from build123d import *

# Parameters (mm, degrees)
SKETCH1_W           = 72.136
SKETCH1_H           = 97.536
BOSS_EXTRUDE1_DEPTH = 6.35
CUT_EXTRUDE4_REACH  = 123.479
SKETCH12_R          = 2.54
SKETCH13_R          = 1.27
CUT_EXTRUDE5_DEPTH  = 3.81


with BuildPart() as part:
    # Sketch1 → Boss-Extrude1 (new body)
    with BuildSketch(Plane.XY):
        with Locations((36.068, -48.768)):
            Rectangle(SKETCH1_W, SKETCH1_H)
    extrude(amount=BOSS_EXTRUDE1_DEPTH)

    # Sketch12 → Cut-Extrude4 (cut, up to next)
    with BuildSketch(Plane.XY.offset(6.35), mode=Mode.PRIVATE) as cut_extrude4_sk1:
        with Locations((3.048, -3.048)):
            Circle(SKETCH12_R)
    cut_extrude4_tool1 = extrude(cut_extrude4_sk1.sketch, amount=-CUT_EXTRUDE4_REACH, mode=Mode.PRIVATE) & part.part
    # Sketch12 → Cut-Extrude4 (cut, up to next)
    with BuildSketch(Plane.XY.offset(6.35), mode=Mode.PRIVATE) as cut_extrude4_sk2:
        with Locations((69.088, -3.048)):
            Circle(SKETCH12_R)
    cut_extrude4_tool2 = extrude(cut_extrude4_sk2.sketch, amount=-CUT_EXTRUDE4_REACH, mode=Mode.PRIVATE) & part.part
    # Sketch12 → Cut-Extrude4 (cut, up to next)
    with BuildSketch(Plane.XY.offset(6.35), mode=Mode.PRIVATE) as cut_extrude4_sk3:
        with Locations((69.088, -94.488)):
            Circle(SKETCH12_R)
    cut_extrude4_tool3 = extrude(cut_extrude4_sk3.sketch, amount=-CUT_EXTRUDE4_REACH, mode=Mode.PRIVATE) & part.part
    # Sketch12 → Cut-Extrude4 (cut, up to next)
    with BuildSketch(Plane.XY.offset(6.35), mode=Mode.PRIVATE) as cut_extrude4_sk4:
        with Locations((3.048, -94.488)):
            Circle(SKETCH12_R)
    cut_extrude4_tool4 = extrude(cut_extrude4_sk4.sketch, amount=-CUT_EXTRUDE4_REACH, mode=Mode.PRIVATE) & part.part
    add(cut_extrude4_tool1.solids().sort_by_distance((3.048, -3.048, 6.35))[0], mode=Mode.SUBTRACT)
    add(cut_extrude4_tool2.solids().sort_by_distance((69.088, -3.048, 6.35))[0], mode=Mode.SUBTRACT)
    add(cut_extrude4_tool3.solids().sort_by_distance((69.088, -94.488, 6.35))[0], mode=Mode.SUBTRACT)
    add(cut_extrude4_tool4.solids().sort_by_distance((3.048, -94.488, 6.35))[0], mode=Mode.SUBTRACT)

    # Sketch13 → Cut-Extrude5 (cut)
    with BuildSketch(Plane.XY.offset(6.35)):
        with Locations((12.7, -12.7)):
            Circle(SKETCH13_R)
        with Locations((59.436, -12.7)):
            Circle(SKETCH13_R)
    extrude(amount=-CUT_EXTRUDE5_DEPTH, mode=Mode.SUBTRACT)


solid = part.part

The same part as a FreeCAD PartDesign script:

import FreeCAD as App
import Part
import Sketcher
from FreeCAD import Vector
Q = App.Units.Quantity


def add_polygon(sketch, points):
    """Adds a closed chain of lines whose ends are joined by coincident constraints."""
    first, n = sketch.GeometryCount, len(points)
    for a, b in zip(points, points[1:] + points[:1]):
        sketch.addGeometry(Part.LineSegment(App.Vector(*a, 0), App.Vector(*b, 0)), False)
    for i in range(n):
        sketch.addConstraint(Sketcher.Constraint("Coincident", first + i, 2, first + (i + 1) % n, 1))

doc = App.newDocument("Part")
body = doc.addObject("PartDesign::Body", "Body")

sketch1 = body.newObject("Sketcher::SketchObject", "Sketch")
sketch1.AttachmentSupport = (doc.getObject("XY_Plane"), [""])
sketch1.MapMode = "FlatFace"
add_polygon(sketch1, [(0, 0), (0, -98), (72, -98), (72, 0)])
sketch1.addConstraint(Sketcher.Constraint("Vertical", 0))
sketch1.addConstraint(Sketcher.Constraint("Horizontal", 1))
sketch1.addConstraint(Sketcher.Constraint("Vertical", 2))
sketch1.addConstraint(Sketcher.Constraint("Horizontal", 3))
sketch1.addConstraint(Sketcher.Constraint("Coincident", 3, 2, -1, 1))
sketch1.addConstraint(Sketcher.Constraint("DistanceX", 1, 1, 1, 2, Q("2.84 in")))
sketch1.addConstraint(Sketcher.Constraint("DistanceY", 0, 2, 0, 1, Q("3.84 in")))
pad1 = body.newObject("PartDesign::Pad", "Pad")
pad1.Profile = sketch1
pad1.Length = Q("0.25 in")

sketch2 = body.newObject("Sketcher::SketchObject", "Sketch001")
sketch2.AttachmentSupport = (doc.getObject("XY_Plane"), [""])
sketch2.MapMode = "FlatFace"
sketch2.AttachmentOffset = App.Placement(Vector(0, 0, 0.25 * 25.4), App.Rotation())
sketch2.addGeometry(Part.Circle(Vector(3, -3, 0), Vector(0, 0, 1), 2.5), False)
sketch2.addConstraint(Sketcher.Constraint("Diameter", 0, Q("0.2 in")))
sketch2.addConstraint(Sketcher.Constraint("DistanceX", -1, 1, 0, 3, Q("0.12 in")))
sketch2.addConstraint(Sketcher.Constraint("DistanceY", 0, 3, -1, 1, Q("0.12 in")))
pocket1 = body.newObject("PartDesign::Pocket", "Pocket")
pocket1.Profile = sketch2
pocket1.Type = "UpToFirst"

sketch3 = body.newObject("Sketcher::SketchObject", "Sketch002")
sketch3.AttachmentSupport = (doc.getObject("XY_Plane"), [""])
sketch3.MapMode = "FlatFace"
sketch3.AttachmentOffset = App.Placement(Vector(0, 0, 0.25 * 25.4), App.Rotation())
sketch3.addGeometry(Part.Circle(Vector(69.1, -3, 0), Vector(0, 0, 1), 2.5), False)
sketch3.addConstraint(Sketcher.Constraint("Diameter", 0, Q("0.2 in")))
sketch3.addConstraint(Sketcher.Constraint("DistanceX", -1, 1, 0, 3, Q("2.72 in")))
sketch3.addConstraint(Sketcher.Constraint("DistanceY", 0, 3, -1, 1, Q("0.12 in")))
pocket2 = body.newObject("PartDesign::Pocket", "Pocket001")
pocket2.Profile = sketch3
pocket2.Type = "UpToFirst"

sketch4 = body.newObject("Sketcher::SketchObject", "Sketch003")
sketch4.AttachmentSupport = (doc.getObject("XY_Plane"), [""])
sketch4.MapMode = "FlatFace"
sketch4.AttachmentOffset = App.Placement(Vector(0, 0, 0.25 * 25.4), App.Rotation())
sketch4.addGeometry(Part.Circle(Vector(69.1, -94.5, 0), Vector(0, 0, 1), 2.5), False)
sketch4.addConstraint(Sketcher.Constraint("Diameter", 0, Q("0.2 in")))
sketch4.addConstraint(Sketcher.Constraint("DistanceX", -1, 1, 0, 3, Q("2.72 in")))
sketch4.addConstraint(Sketcher.Constraint("DistanceY", 0, 3, -1, 1, Q("3.72 in")))
pocket3 = body.newObject("PartDesign::Pocket", "Pocket002")
pocket3.Profile = sketch4
pocket3.Type = "UpToFirst"

sketch5 = body.newObject("Sketcher::SketchObject", "Sketch004")
sketch5.AttachmentSupport = (doc.getObject("XY_Plane"), [""])
sketch5.MapMode = "FlatFace"
sketch5.AttachmentOffset = App.Placement(Vector(0, 0, 0.25 * 25.4), App.Rotation())
sketch5.addGeometry(Part.Circle(Vector(3, -94.5, 0), Vector(0, 0, 1), 2.5), False)
sketch5.addConstraint(Sketcher.Constraint("Diameter", 0, Q("0.2 in")))
sketch5.addConstraint(Sketcher.Constraint("DistanceX", -1, 1, 0, 3, Q("0.12 in")))
sketch5.addConstraint(Sketcher.Constraint("DistanceY", 0, 3, -1, 1, Q("3.72 in")))
pocket4 = body.newObject("PartDesign::Pocket", "Pocket003")
pocket4.Profile = sketch5
pocket4.Type = "UpToFirst"

sketch6 = body.newObject("Sketcher::SketchObject", "Sketch005")
sketch6.AttachmentSupport = (doc.getObject("XY_Plane"), [""])
sketch6.MapMode = "FlatFace"
sketch6.AttachmentOffset = App.Placement(Vector(0, 0, 0.25 * 25.4), App.Rotation())
sketch6.addGeometry(Part.Circle(Vector(12.7, -12.7, 0), Vector(0, 0, 1), 1.3), False)
sketch6.addGeometry(Part.Circle(Vector(59.4, -12.7, 0), Vector(0, 0, 1), 1.3), False)
sketch6.addConstraint(Sketcher.Constraint("Equal", 0, 1))
sketch6.addConstraint(Sketcher.Constraint("Horizontal", 0, 3, 1, 3))
sketch6.addConstraint(Sketcher.Constraint("Diameter", 0, Q("0.1 in")))
sketch6.addConstraint(Sketcher.Constraint("DistanceX", -1, 1, 0, 3, Q("0.5 in")))
sketch6.addConstraint(Sketcher.Constraint("DistanceY", 0, 3, -1, 1, Q("0.5 in")))
sketch6.addConstraint(Sketcher.Constraint("DistanceX", -1, 1, 1, 3, Q("2.34 in")))
pocket5 = body.newObject("PartDesign::Pocket", "Pocket004")
pocket5.Profile = sketch6
pocket5.Length = Q("0.15 in")

doc.recompute()
